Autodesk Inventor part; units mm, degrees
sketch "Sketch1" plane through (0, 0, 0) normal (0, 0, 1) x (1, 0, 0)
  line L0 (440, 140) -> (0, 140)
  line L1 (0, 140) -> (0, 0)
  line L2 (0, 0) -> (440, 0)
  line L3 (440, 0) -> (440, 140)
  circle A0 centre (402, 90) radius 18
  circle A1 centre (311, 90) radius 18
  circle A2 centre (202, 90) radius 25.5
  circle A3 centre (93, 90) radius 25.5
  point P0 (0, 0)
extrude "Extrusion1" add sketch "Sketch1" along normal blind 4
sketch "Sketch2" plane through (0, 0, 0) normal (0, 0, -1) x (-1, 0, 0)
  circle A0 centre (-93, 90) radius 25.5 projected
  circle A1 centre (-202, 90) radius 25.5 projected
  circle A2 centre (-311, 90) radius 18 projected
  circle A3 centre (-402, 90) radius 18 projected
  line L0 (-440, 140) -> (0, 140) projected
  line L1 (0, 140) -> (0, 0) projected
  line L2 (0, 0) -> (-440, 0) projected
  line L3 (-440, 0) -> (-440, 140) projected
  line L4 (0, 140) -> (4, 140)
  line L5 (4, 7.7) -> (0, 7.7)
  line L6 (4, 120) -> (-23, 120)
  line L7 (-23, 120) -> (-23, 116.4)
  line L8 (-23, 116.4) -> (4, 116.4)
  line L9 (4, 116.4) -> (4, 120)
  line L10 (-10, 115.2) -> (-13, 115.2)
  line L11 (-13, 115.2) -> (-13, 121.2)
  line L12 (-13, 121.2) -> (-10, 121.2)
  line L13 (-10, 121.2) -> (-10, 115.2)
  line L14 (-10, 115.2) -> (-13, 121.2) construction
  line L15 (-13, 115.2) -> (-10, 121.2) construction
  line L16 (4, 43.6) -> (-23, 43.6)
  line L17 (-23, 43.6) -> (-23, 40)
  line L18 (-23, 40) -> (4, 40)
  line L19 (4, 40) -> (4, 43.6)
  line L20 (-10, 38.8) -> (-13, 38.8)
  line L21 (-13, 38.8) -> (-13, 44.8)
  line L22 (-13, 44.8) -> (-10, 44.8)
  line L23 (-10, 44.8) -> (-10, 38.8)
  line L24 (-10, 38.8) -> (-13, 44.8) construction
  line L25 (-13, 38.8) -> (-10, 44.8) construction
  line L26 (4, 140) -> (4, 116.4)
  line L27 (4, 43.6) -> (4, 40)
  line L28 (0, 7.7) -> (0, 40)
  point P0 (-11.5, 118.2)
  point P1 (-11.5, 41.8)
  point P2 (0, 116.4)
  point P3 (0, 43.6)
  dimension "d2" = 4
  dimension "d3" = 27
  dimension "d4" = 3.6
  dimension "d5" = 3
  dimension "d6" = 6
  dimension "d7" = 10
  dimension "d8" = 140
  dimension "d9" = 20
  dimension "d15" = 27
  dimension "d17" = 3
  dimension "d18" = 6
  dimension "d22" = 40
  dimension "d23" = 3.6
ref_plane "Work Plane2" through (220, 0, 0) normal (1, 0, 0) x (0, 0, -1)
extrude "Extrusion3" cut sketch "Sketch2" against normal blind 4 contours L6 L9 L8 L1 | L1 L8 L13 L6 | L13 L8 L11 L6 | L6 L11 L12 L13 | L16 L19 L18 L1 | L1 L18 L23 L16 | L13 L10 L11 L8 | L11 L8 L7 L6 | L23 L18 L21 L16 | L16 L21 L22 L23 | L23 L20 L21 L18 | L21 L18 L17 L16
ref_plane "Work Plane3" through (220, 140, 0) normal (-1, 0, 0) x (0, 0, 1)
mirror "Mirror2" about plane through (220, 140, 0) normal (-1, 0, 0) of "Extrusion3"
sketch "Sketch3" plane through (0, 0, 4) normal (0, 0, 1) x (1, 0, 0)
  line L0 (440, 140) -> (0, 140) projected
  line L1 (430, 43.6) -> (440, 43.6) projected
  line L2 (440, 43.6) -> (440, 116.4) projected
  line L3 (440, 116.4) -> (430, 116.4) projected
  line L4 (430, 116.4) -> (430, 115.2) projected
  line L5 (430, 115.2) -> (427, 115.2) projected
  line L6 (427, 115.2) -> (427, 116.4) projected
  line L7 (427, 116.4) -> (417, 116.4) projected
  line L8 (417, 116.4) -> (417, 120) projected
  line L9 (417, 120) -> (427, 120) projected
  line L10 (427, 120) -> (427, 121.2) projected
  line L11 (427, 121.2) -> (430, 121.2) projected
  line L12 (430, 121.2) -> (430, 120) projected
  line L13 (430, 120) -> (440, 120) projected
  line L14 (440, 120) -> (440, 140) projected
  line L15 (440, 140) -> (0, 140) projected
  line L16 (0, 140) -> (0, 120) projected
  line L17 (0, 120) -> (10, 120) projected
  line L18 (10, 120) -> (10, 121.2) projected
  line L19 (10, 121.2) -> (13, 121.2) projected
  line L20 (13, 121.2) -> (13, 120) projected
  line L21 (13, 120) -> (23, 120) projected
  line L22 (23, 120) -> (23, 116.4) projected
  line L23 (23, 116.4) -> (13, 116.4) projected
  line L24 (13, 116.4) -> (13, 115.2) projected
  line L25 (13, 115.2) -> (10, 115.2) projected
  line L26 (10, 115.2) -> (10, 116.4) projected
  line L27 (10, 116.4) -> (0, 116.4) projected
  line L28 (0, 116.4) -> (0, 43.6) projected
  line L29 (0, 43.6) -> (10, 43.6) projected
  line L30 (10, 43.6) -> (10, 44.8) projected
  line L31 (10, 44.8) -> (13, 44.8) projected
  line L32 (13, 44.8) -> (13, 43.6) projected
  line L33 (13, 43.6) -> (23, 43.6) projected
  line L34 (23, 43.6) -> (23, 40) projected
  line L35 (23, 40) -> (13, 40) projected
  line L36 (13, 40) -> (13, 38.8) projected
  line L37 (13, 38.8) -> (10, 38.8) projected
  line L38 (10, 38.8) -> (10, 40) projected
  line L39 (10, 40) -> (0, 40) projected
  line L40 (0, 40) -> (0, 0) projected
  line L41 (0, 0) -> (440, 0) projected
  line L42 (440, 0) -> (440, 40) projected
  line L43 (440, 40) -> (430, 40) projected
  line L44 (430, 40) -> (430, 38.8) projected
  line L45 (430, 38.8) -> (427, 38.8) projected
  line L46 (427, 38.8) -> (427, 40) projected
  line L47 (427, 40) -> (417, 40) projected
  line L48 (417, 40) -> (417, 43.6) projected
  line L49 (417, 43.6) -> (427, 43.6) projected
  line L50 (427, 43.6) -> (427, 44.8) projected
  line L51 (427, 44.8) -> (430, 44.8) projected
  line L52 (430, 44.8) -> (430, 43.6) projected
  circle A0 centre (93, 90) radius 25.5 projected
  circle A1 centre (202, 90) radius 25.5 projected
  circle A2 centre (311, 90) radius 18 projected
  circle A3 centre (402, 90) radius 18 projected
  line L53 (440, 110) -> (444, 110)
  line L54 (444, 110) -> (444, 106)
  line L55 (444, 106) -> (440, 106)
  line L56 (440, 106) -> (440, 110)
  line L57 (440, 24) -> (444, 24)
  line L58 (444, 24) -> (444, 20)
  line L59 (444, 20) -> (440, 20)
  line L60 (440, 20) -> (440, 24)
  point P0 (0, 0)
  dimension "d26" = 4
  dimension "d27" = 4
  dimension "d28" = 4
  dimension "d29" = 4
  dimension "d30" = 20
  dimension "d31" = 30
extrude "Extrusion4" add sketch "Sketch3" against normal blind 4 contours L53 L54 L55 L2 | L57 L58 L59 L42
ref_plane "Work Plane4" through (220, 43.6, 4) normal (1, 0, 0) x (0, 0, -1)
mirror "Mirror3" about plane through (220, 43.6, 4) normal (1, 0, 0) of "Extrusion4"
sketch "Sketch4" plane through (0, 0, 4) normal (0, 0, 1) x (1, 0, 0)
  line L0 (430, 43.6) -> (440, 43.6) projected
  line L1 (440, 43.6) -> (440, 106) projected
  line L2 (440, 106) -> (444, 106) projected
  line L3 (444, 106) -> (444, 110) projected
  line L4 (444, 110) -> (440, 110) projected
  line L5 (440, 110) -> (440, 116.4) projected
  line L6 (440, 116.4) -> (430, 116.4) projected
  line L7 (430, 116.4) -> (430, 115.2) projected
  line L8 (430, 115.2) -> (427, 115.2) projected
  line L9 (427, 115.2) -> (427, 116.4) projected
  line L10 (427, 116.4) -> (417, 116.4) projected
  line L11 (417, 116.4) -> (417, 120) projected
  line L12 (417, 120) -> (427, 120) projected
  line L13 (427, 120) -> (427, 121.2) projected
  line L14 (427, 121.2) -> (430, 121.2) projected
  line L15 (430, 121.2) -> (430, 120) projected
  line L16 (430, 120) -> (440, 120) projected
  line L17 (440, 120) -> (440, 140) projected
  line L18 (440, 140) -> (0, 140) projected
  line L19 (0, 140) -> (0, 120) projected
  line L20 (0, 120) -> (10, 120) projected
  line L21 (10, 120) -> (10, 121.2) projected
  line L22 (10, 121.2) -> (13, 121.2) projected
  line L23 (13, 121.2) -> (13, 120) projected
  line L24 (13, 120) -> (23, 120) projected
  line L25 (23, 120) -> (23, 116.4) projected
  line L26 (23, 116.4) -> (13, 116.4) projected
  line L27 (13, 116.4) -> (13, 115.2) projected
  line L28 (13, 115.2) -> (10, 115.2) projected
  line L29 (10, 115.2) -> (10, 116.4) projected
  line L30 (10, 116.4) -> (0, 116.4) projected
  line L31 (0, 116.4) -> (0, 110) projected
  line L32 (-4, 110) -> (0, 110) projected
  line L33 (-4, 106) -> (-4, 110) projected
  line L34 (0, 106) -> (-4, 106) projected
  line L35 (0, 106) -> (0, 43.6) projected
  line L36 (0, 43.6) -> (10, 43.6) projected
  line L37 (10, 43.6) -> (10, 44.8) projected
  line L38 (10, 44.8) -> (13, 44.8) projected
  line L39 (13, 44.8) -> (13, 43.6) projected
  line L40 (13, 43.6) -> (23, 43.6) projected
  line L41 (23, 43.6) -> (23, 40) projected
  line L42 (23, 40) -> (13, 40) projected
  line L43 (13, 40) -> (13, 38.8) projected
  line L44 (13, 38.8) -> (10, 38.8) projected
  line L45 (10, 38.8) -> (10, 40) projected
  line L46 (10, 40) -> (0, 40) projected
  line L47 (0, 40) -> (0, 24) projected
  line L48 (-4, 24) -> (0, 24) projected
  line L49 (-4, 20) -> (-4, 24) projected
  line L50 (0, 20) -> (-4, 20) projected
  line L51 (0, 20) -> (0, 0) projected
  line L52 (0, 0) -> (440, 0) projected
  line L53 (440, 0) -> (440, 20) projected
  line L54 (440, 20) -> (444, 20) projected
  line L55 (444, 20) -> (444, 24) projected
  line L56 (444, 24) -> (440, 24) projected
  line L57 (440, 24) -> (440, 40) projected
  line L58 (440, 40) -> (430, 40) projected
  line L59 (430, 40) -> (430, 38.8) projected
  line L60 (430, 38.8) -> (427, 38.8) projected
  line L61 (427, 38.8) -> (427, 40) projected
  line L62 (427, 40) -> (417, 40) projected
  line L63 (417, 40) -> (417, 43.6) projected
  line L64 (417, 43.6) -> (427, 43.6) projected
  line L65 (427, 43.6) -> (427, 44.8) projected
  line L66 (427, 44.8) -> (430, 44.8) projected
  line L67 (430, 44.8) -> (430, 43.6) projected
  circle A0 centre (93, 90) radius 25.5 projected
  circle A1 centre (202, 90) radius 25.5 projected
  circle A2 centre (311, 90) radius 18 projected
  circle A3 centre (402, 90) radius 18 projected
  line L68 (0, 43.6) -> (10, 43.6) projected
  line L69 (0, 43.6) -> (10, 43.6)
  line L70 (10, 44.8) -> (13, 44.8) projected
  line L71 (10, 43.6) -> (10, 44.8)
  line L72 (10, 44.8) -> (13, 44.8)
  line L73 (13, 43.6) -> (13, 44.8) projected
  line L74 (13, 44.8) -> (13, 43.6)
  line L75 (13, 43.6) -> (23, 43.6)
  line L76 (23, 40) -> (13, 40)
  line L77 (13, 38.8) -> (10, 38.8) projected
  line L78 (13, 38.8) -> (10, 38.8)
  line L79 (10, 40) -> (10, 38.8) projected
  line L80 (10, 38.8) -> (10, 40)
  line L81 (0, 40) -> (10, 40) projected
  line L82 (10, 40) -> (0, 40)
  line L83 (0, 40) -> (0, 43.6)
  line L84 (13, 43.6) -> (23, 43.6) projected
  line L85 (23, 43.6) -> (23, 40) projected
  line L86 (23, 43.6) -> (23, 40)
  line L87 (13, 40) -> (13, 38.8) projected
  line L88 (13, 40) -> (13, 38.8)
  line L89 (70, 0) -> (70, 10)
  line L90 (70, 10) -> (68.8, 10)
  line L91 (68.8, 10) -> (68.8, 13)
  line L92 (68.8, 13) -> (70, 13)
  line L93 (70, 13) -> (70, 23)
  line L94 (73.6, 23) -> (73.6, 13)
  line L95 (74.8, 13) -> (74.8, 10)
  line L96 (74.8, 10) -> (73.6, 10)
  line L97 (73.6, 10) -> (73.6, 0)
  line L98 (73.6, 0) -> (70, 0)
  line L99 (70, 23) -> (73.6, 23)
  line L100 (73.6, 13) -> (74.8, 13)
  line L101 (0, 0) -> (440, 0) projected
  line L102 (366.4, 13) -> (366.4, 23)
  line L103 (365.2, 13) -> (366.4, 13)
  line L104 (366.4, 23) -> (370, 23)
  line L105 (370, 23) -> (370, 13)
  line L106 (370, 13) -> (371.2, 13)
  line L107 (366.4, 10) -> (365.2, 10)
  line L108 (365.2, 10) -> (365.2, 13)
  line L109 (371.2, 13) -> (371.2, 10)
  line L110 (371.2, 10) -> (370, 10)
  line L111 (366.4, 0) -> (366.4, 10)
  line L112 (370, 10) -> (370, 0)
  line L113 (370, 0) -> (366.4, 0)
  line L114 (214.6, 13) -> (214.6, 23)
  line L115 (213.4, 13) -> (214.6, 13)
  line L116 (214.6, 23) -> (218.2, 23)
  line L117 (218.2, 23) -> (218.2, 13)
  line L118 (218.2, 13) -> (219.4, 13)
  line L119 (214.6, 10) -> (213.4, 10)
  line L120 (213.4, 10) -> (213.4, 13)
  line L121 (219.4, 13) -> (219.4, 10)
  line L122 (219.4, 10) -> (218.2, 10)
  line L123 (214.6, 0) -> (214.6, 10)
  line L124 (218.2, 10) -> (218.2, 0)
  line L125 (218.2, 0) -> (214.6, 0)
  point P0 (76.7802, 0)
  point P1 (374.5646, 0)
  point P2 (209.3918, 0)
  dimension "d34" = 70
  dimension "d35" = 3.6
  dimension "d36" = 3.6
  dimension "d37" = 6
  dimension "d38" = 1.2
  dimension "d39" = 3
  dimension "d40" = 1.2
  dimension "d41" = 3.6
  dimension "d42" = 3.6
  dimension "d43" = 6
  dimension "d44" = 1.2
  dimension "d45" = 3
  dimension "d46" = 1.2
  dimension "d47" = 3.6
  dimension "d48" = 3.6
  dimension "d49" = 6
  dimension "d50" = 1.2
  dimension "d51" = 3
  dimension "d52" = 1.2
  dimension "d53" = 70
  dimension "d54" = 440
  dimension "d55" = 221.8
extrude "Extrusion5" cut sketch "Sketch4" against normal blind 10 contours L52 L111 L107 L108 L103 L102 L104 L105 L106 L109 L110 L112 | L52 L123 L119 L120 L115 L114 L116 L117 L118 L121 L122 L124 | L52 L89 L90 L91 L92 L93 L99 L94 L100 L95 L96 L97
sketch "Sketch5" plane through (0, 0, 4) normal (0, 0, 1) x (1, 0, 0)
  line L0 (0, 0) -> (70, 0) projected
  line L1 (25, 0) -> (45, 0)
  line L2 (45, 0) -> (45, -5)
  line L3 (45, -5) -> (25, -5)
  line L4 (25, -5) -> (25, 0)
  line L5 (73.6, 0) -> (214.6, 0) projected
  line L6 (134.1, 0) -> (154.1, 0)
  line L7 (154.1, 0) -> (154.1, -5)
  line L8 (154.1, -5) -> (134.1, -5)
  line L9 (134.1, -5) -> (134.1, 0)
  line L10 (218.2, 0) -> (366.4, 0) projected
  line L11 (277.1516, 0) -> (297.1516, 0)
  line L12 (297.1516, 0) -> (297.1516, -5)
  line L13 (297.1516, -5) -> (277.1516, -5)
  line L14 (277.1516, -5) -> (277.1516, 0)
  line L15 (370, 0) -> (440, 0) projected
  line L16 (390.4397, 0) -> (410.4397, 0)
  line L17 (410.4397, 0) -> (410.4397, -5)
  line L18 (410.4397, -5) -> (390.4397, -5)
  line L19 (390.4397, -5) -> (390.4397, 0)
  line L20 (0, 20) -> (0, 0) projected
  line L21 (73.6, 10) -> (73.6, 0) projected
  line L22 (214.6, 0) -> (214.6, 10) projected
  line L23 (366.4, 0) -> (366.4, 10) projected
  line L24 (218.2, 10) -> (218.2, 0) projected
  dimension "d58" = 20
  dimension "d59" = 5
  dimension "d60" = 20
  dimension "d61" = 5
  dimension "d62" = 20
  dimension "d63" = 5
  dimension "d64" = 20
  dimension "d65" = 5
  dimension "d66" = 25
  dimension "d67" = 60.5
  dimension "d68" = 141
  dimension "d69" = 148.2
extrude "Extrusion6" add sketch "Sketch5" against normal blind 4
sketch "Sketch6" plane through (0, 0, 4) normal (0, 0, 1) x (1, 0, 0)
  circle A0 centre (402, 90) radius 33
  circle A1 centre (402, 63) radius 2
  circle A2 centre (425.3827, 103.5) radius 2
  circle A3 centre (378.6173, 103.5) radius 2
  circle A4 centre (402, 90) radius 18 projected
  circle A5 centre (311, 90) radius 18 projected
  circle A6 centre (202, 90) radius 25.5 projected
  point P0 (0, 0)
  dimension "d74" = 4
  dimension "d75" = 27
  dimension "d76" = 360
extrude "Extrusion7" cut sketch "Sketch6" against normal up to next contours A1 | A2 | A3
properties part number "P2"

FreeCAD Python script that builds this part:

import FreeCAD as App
import Part
import Sketcher

V = App.Vector
Q = App.Units.Quantity

doc = App.newDocument("Part")
body = doc.addObject("PartDesign::Body", "Body")

# Sketch on XY plane
sketch1 = doc.addObject("Sketcher::SketchObject", "Sketch")
body.addObject(sketch1)
sketch1.AttachmentSupport = (doc.XY_Plane, [""])
sketch1.MapMode = "FlatFace"
sketch1.addGeometry(Part.LineSegment(V(440, 0, 0), V(440, 140, 0)), False)
sketch1.addGeometry(Part.LineSegment(V(440, 140, 0), V(0, 140, 0)), False)
sketch1.addGeometry(Part.LineSegment(V(0, 140, 0), V(0, 0, 0)), False)
sketch1.addGeometry(Part.LineSegment(V(0, 0, 0), V(440, 0, 0)), False)
sketch1.addGeometry(Part.Circle(V(93, 90, 0), V(0, 0, 1), 26), False)
sketch1.addGeometry(Part.Circle(V(202, 90, 0), V(0, 0, 1), 26), False)
sketch1.addGeometry(Part.Circle(V(311, 90, 0), V(0, 0, 1), 18), False)
sketch1.addGeometry(Part.Circle(V(402, 90, 0), V(0, 0, 1), 18), False)
sketch1.addConstraint(Sketcher.Constraint("Coincident", 0, 2, 1, 1))
sketch1.addConstraint(Sketcher.Constraint("Coincident", 1, 2, 2, 1))
sketch1.addConstraint(Sketcher.Constraint("Coincident", 2, 2, 3, 1))
sketch1.addConstraint(Sketcher.Constraint("Coincident", 3, 2, 0, 1))
sketch1.addConstraint(Sketcher.Constraint("Vertical", 0))
sketch1.addConstraint(Sketcher.Constraint("Horizontal", 1))
sketch1.addConstraint(Sketcher.Constraint("Vertical", 2))
sketch1.addConstraint(Sketcher.Constraint("Horizontal", 3))
sketch1.addConstraint(Sketcher.Constraint("Coincident", 2, 2, -1, 1))
sketch1.addConstraint(Sketcher.Constraint("Equal", 4, 5))
sketch1.addConstraint(Sketcher.Constraint("Equal", 6, 7))
sketch1.addConstraint(Sketcher.Constraint("Horizontal", 4, 3, 5, 3))
sketch1.addConstraint(Sketcher.Constraint("Horizontal", 5, 3, 6, 3))
sketch1.addConstraint(Sketcher.Constraint("Horizontal", 6, 3, 7, 3))
sketch1.addConstraint(Sketcher.Constraint("Diameter", 4, Q("51 mm")))
sketch1.addConstraint(Sketcher.Constraint("Diameter", 6, Q("36 mm")))
sketch1.addConstraint(Sketcher.Constraint("DistanceX", 1, 2, 1, 1, Q("440 mm")))
sketch1.addConstraint(Sketcher.Constraint("DistanceY", 0, 1, 0, 2, Q("140 mm")))
sketch1.addConstraint(Sketcher.Constraint("DistanceX", -1, 1, 4, 3, Q("93 mm")))
sketch1.addConstraint(Sketcher.Constraint("DistanceY", -1, 1, 4, 3, Q("90 mm")))
sketch1.addConstraint(Sketcher.Constraint("DistanceX", -1, 1, 5, 3, Q("202 mm")))
sketch1.addConstraint(Sketcher.Constraint("DistanceX", -1, 1, 6, 3, Q("311 mm")))
sketch1.addConstraint(Sketcher.Constraint("DistanceX", -1, 1, 7, 3, Q("402 mm")))
pad1 = doc.addObject("PartDesign::Pad", "Pad")
body.addObject(pad1)
pad1.Profile = sketch1
pad1.Length = 4

# Sketch on XY plane
sketch2 = doc.addObject("Sketcher::SketchObject", "Sketch001")
body.addObject(sketch2)
sketch2.AttachmentSupport = (doc.XY_Plane, [""])
sketch2.MapMode = "FlatFace"
sketch2.addGeometry(Part.LineSegment(V(-4, 120, 0), V(10, 120, 0)), False)
sketch2.addGeometry(Part.LineSegment(V(10, 120, 0), V(10, 121.2, 0)), False)
sketch2.addGeometry(Part.LineSegment(V(10, 121.2, 0), V(13, 121.2, 0)), False)
sketch2.addGeometry(Part.LineSegment(V(13, 121.2, 0), V(13, 120, 0)), False)
sketch2.addGeometry(Part.LineSegment(V(13, 120, 0), V(23, 120, 0)), False)
sketch2.addGeometry(Part.LineSegment(V(23, 120, 0), V(23, 116.4, 0)), False)
sketch2.addGeometry(Part.LineSegment(V(23, 116.4, 0), V(13, 116.4, 0)), False)
sketch2.addGeometry(Part.LineSegment(V(13, 116.4, 0), V(13, 115.2, 0)), False)
sketch2.addGeometry(Part.LineSegment(V(13, 115.2, 0), V(10, 115.2, 0)), False)
sketch2.addGeometry(Part.LineSegment(V(10, 115.2, 0), V(10, 116.4, 0)), False)
sketch2.addGeometry(Part.LineSegment(V(10, 116.4, 0), V(-4, 116.4, 0)), False)
sketch2.addGeometry(Part.LineSegment(V(-4, 116.4, 0), V(-4, 120, 0)), False)
sketch2.addGeometry(Part.LineSegment(V(-4, 43.6, 0), V(10, 43.6, 0)), False)
sketch2.addGeometry(Part.LineSegment(V(10, 43.6, 0), V(10, 44.8, 0)), False)
sketch2.addGeometry(Part.LineSegment(V(10, 44.8, 0), V(13, 44.8, 0)), False)
sketch2.addGeometry(Part.LineSegment(V(13, 44.8, 0), V(13, 43.6, 0)), False)
sketch2.addGeometry(Part.LineSegment(V(13, 43.6, 0), V(23, 43.6, 0)), False)
sketch2.addGeometry(Part.LineSegment(V(23, 43.6, 0), V(23, 40, 0)), False)
sketch2.addGeometry(Part.LineSegment(V(23, 40, 0), V(13, 40, 0)), False)
sketch2.addGeometry(Part.LineSegment(V(13, 40, 0), V(13, 38.8, 0)), False)
sketch2.addGeometry(Part.LineSegment(V(13, 38.8, 0), V(10, 38.8, 0)), False)
sketch2.addGeometry(Part.LineSegment(V(10, 38.8, 0), V(10, 40, 0)), False)
sketch2.addGeometry(Part.LineSegment(V(10, 40, 0), V(-4, 40, 0)), False)
sketch2.addGeometry(Part.LineSegment(V(-4, 40, 0), V(-4, 43.6, 0)), False)
sketch2.addConstraint(Sketcher.Constraint("Coincident", 0, 2, 1, 1))
sketch2.addConstraint(Sketcher.Constraint("Coincident", 1, 2, 2, 1))
sketch2.addConstraint(Sketcher.Constraint("Coincident", 2, 2, 3, 1))
sketch2.addConstraint(Sketcher.Constraint("Coincident", 3, 2, 4, 1))
sketch2.addConstraint(Sketcher.Constraint("Coincident", 4, 2, 5, 1))
sketch2.addConstraint(Sketcher.Constraint("Coincident", 5, 2, 6, 1))
sketch2.addConstraint(Sketcher.Constraint("Coincident", 6, 2, 7, 1))
sketch2.addConstraint(Sketcher.Constraint("Coincident", 7, 2, 8, 1))
sketch2.addConstraint(Sketcher.Constraint("Coincident", 8, 2, 9, 1))
sketch2.addConstraint(Sketcher.Constraint("Coincident", 9, 2, 10, 1))
sketch2.addConstraint(Sketcher.Constraint("Coincident", 10, 2, 11, 1))
sketch2.addConstraint(Sketcher.Constraint("Coincident", 11, 2, 0, 1))
sketch2.addConstraint(Sketcher.Constraint("Coincident", 12, 2, 13, 1))
sketch2.addConstraint(Sketcher.Constraint("Coincident", 13, 2, 14, 1))
sketch2.addConstraint(Sketcher.Constraint("Coincident", 14, 2, 15, 1))
sketch2.addConstraint(Sketcher.Constraint("Coincident", 15, 2, 16, 1))
sketch2.addConstraint(Sketcher.Constraint("Coincident", 16, 2, 17, 1))
sketch2.addConstraint(Sketcher.Constraint("Coincident", 17, 2, 18, 1))
sketch2.addConstraint(Sketcher.Constraint("Coincident", 18, 2, 19, 1))
sketch2.addConstraint(Sketcher.Constraint("Coincident", 19, 2, 20, 1))
sketch2.addConstraint(Sketcher.Constraint("Coincident", 20, 2, 21, 1))
sketch2.addConstraint(Sketcher.Constraint("Coincident", 21, 2, 22, 1))
sketch2.addConstraint(Sketcher.Constraint("Coincident", 22, 2, 23, 1))
sketch2.addConstraint(Sketcher.Constraint("Coincident", 23, 2, 12, 1))
sketch2.addConstraint(Sketcher.Constraint("Horizontal", 0))
sketch2.addConstraint(Sketcher.Constraint("Vertical", 1))
sketch2.addConstraint(Sketcher.Constraint("Horizontal", 2))
sketch2.addConstraint(Sketcher.Constraint("Vertical", 3))
sketch2.addConstraint(Sketcher.Constraint("Horizontal", 4))
sketch2.addConstraint(Sketcher.Constraint("Vertical", 5))
sketch2.addConstraint(Sketcher.Constraint("Horizontal", 6))
sketch2.addConstraint(Sketcher.Constraint("Vertical", 7))
sketch2.addConstraint(Sketcher.Constraint("Horizontal", 8))
sketch2.addConstraint(Sketcher.Constraint("Vertical", 9))
sketch2.addConstraint(Sketcher.Constraint("Horizontal", 10))
sketch2.addConstraint(Sketcher.Constraint("Vertical", 11))
sketch2.addConstraint(Sketcher.Constraint("Horizontal", 12))
sketch2.addConstraint(Sketcher.Constraint("Vertical", 13))
sketch2.addConstraint(Sketcher.Constraint("Horizontal", 14))
sketch2.addConstraint(Sketcher.Constraint("Vertical", 15))
sketch2.addConstraint(Sketcher.Constraint("Horizontal", 16))
sketch2.addConstraint(Sketcher.Constraint("Vertical", 17))
sketch2.addConstraint(Sketcher.Constraint("Horizontal", 18))
sketch2.addConstraint(Sketcher.Constraint("Vertical", 19))
sketch2.addConstraint(Sketcher.Constraint("Horizontal", 20))
sketch2.addConstraint(Sketcher.Constraint("Vertical", 21))
sketch2.addConstraint(Sketcher.Constraint("Horizontal", 22))
sketch2.addConstraint(Sketcher.Constraint("Vertical", 23))
sketch2.addConstraint(Sketcher.Constraint("Horizontal", 0, 2, 3, 2))
sketch2.addConstraint(Sketcher.Constraint("Horizontal", 6, 2, 9, 2))
sketch2.addConstraint(Sketcher.Constraint("Horizontal", 12, 2, 15, 2))
sketch2.addConstraint(Sketcher.Constraint("Horizontal", 18, 2, 21, 2))
sketch2.addConstraint(Sketcher.Constraint("Vertical", 3, 2, 6, 2))
sketch2.addConstraint(Sketcher.Constraint("Vertical", 1, 2, 8, 2))
sketch2.addConstraint(Sketcher.Constraint("Vertical", 9, 2, 12, 2))
sketch2.addConstraint(Sketcher.Constraint("Vertical", 7, 2, 14, 2))
sketch2.addConstraint(Sketcher.Constraint("Vertical", 5, 2, 16, 2))
sketch2.addConstraint(Sketcher.Constraint("Vertical", 15, 2, 18, 2))
sketch2.addConstraint(Sketcher.Constraint("Vertical", 13, 2, 20, 2))
sketch2.addConstraint(Sketcher.Constraint("Vertical", 11, 2, 22, 2))
sketch2.addConstraint(Sketcher.Constraint("Equal", 3, 7))
sketch2.addConstraint(Sketcher.Constraint("Equal", 9, 13))
sketch2.addConstraint(Sketcher.Constraint("Equal", 11, 17))
sketch2.addConstraint(Sketcher.Constraint("Equal", 15, 19))
sketch2.addConstraint(Sketcher.Constraint("DistanceX", 2, 1, 2, 2, Q("3 mm")))
sketch2.addConstraint(Sketcher.Constraint("DistanceX", 4, 1, 4, 2, Q("10 mm")))
sketch2.addConstraint(Sketcher.Constraint("DistanceY", 5, 2, 5, 1, Q("3.6 mm")))
sketch2.addConstraint(Sketcher.Constraint("DistanceX", -1, 1, 0, 2, Q("10 mm")))
sketch2.addConstraint(Sketcher.Constraint("DistanceX", 10, 2, -1, 1, Q("4 mm")))
sketch2.addConstraint(Sketcher.Constraint("DistanceY", -1, 1, 17, 2, Q("40 mm")))
sketch2.addConstraint(Sketcher.Constraint("DistanceY", 7, 2, 2, 2, Q("6 mm")))
sketch2.addConstraint(Sketcher.Constraint("DistanceY", -1, 1, 0, 2, Q("120 mm")))
pocket1 = doc.addObject("PartDesign::Pocket", "Pocket")
body.addObject(pocket1)
pocket1.Profile = sketch2
pocket1.Length = 4
pocket1.Reversed = True
doc.recompute()

datumplane = doc.addObject("PartDesign::Plane", "DatumPlane")
body.addObject(datumplane)
datumplane.AttachmentSupport = (doc.YZ_Plane, [""])
datumplane.MapMode = "FlatFace"
datumplane.AttachmentOffset = App.Placement(V(0, 0, 220), App.Rotation())
mirrored = doc.addObject("PartDesign::Mirrored", "Mirrored")
body.addObject(mirrored)
mirrored.Originals = [pocket1]
mirrored.MirrorPlane = (datumplane, [""])
body.Tip = mirrored

# Sketch on XY plane
sketch3 = doc.addObject("Sketcher::SketchObject", "Sketch002")
body.addObject(sketch3)
sketch3.AttachmentSupport = (doc.XY_Plane, [""])
sketch3.MapMode = "FlatFace"
sketch3.AttachmentOffset = App.Placement(V(0, 0, 4), App.Rotation())
sketch3.addGeometry(Part.LineSegment(V(444, 110, 0), V(440, 110, 0)), False)
sketch3.addGeometry(Part.LineSegment(V(440, 110, 0), V(440, 106, 0)), False)
sketch3.addGeometry(Part.LineSegment(V(440, 106, 0), V(444, 106, 0)), False)
sketch3.addGeometry(Part.LineSegment(V(444, 106, 0), V(444, 110, 0)), False)
sketch3.addGeometry(Part.LineSegment(V(444, 24, 0), V(440, 24, 0)), False)
sketch3.addGeometry(Part.LineSegment(V(440, 24, 0), V(440, 20, 0)), False)
sketch3.addGeometry(Part.LineSegment(V(440, 20, 0), V(444, 20, 0)), False)
sketch3.addGeometry(Part.LineSegment(V(444, 20, 0), V(444, 24, 0)), False)
sketch3.addConstraint(Sketcher.Constraint("Coincident", 0, 2, 1, 1))
sketch3.addConstraint(Sketcher.Constraint("Coincident", 1, 2, 2, 1))
sketch3.addConstraint(Sketcher.Constraint("Coincident", 2, 2, 3, 1))
sketch3.addConstraint(Sketcher.Constraint("Coincident", 3, 2, 0, 1))
sketch3.addConstraint(Sketcher.Constraint("Coincident", 4, 2, 5, 1))
sketch3.addConstraint(Sketcher.Constraint("Coincident", 5, 2, 6, 1))
sketch3.addConstraint(Sketcher.Constraint("Coincident", 6, 2, 7, 1))
sketch3.addConstraint(Sketcher.Constraint("Coincident", 7, 2, 4, 1))
sketch3.addConstraint(Sketcher.Constraint("Horizontal", 0))
sketch3.addConstraint(Sketcher.Constraint("Vertical", 1))
sketch3.addConstraint(Sketcher.Constraint("Horizontal", 2))
sketch3.addConstraint(Sketcher.Constraint("Vertical", 3))
sketch3.addConstraint(Sketcher.Constraint("Horizontal", 4))
sketch3.addConstraint(Sketcher.Constraint("Vertical", 5))
sketch3.addConstraint(Sketcher.Constraint("Horizontal", 6))
sketch3.addConstraint(Sketcher.Constraint("Vertical", 7))
sketch3.addConstraint(Sketcher.Constraint("Vertical", 1, 2, 4, 2))
sketch3.addConstraint(Sketcher.Constraint("Vertical", 3, 2, 6, 2))
sketch3.addConstraint(Sketcher.Constraint("Equal", 6, 1))
sketch3.addConstraint(Sketcher.Constraint("Equal", 3, 5))
sketch3.addConstraint(Sketcher.Constraint("DistanceX", 0, 2, 0, 1, Q("4 mm")))
sketch3.addConstraint(Sketcher.Constraint("DistanceY", -1, 1, 5, 2, Q("20 mm")))
sketch3.addConstraint(Sketcher.Constraint("DistanceX", -1, 1, 0, 2, Q("440 mm")))
sketch3.addConstraint(Sketcher.Constraint("DistanceY", -1, 1, 0, 2, Q("110 mm")))
pad2 = doc.addObject("PartDesign::Pad", "Pad001")
body.addObject(pad2)
pad2.Profile = sketch3
pad2.Length = 4
pad2.Reversed = True
doc.recompute()

datumplane2 = doc.addObject("PartDesign::Plane", "DatumPlane001")
body.addObject(datumplane2)
datumplane2.AttachmentSupport = (doc.YZ_Plane, [""])
datumplane2.MapMode = "FlatFace"
datumplane2.AttachmentOffset = App.Placement(V(0, 0, 220), App.Rotation())
mirrored2 = doc.addObject("PartDesign::Mirrored", "Mirrored001")
body.addObject(mirrored2)
mirrored2.Originals = [pad2]
mirrored2.MirrorPlane = (datumplane2, [""])
body.Tip = mirrored2

# Sketch on XY plane
sketch4 = doc.addObject("Sketcher::SketchObject", "Sketch003")
body.addObject(sketch4)
sketch4.AttachmentSupport = (doc.XY_Plane, [""])
sketch4.MapMode = "FlatFace"
sketch4.AttachmentOffset = App.Placement(V(0, 0, 4), App.Rotation())
sketch4.addGeometry(Part.LineSegment(V(366.4, 0, 0), V(370, 0, 0)), False)
sketch4.addGeometry(Part.LineSegment(V(370, 0, 0), V(370, 10, 0)), False)
sketch4.addGeometry(Part.LineSegment(V(370, 10, 0), V(371.2, 10, 0)), False)
sketch4.addGeometry(Part.LineSegment(V(371.2, 10, 0), V(371.2, 13, 0)), False)
sketch4.addGeometry(Part.LineSegment(V(371.2, 13, 0), V(370, 13, 0)), False)
sketch4.addGeometry(Part.LineSegment(V(370, 13, 0), V(370, 23, 0)), False)
sketch4.addGeometry(Part.LineSegment(V(370, 23, 0), V(366.4, 23, 0)), False)
sketch4.addGeometry(Part.LineSegment(V(366.4, 23, 0), V(366.4, 13, 0)), False)
sketch4.addGeometry(Part.LineSegment(V(366.4, 13, 0), V(365.2, 13, 0)), False)
sketch4.addGeometry(Part.LineSegment(V(365.2, 13, 0), V(365.2, 10, 0)), False)
sketch4.addGeometry(Part.LineSegment(V(365.2, 10, 0), V(366.4, 10, 0)), False)
sketch4.addGeometry(Part.LineSegment(V(366.4, 10, 0), V(366.4, 0, 0)), False)
sketch4.addGeometry(Part.LineSegment(V(214.6, 0, 0), V(218.2, 0, 0)), False)
sketch4.addGeometry(Part.LineSegment(V(218.2, 0, 0), V(218.2, 10, 0)), False)
sketch4.addGeometry(Part.LineSegment(V(218.2, 10, 0), V(219.4, 10, 0)), False)
sketch4.addGeometry(Part.LineSegment(V(219.4, 10, 0), V(219.4, 13, 0)), False)
sketch4.addGeometry(Part.LineSegment(V(219.4, 13, 0), V(218.2, 13, 0)), False)
sketch4.addGeometry(Part.LineSegment(V(218.2, 13, 0), V(218.2, 23, 0)), False)
sketch4.addGeometry(Part.LineSegment(V(218.2, 23, 0), V(214.6, 23, 0)), False)
sketch4.addGeometry(Part.LineSegment(V(214.6, 23, 0), V(214.6, 13, 0)), False)
sketch4.addGeometry(Part.LineSegment(V(214.6, 13, 0), V(213.4, 13, 0)), False)
sketch4.addGeometry(Part.LineSegment(V(213.4, 13, 0), V(213.4, 10, 0)), False)
sketch4.addGeometry(Part.LineSegment(V(213.4, 10, 0), V(214.6, 10, 0)), False)
sketch4.addGeometry(Part.LineSegment(V(214.6, 10, 0), V(214.6, 0, 0)), False)
sketch4.addGeometry(Part.LineSegment(V(70, 0, 0), V(73.6, 0, 0)), False)
sketch4.addGeometry(Part.LineSegment(V(73.6, 0, 0), V(73.6, 10, 0)), False)
sketch4.addGeometry(Part.LineSegment(V(73.6, 10, 0), V(74.8, 10, 0)), False)
sketch4.addGeometry(Part.LineSegment(V(74.8, 10, 0), V(74.8, 13, 0)), False)
sketch4.addGeometry(Part.LineSegment(V(74.8, 13, 0), V(73.6, 13, 0)), False)
sketch4.addGeometry(Part.LineSegment(V(73.6, 13, 0), V(73.6, 23, 0)), False)
sketch4.addGeometry(Part.LineSegment(V(73.6, 23, 0), V(70, 23, 0)), False)
sketch4.addGeometry(Part.LineSegment(V(70, 23, 0), V(70, 13, 0)), False)
sketch4.addGeometry(Part.LineSegment(V(70, 13, 0), V(68.8, 13, 0)), False)
sketch4.addGeometry(Part.LineSegment(V(68.8, 13, 0), V(68.8, 10, 0)), False)
sketch4.addGeometry(Part.LineSegment(V(68.8, 10, 0), V(70, 10, 0)), False)
sketch4.addGeometry(Part.LineSegment(V(70, 10, 0), V(70, 0, 0)), False)
sketch4.addConstraint(Sketcher.Constraint("Coincident", 0, 2, 1, 1))
sketch4.addConstraint(Sketcher.Constraint("Coincident", 1, 2, 2, 1))
sketch4.addConstraint(Sketcher.Constraint("Coincident", 2, 2, 3, 1))
sketch4.addConstraint(Sketcher.Constraint("Coincident", 3, 2, 4, 1))
sketch4.addConstraint(Sketcher.Constraint("Coincident", 4, 2, 5, 1))
sketch4.addConstraint(Sketcher.Constraint("Coincident", 5, 2, 6, 1))
sketch4.addConstraint(Sketcher.Constraint("Coincident", 6, 2, 7, 1))
sketch4.addConstraint(Sketcher.Constraint("Coincident", 7, 2, 8, 1))
sketch4.addConstraint(Sketcher.Constraint("Coincident", 8, 2, 9, 1))
sketch4.addConstraint(Sketcher.Constraint("Coincident", 9, 2, 10, 1))
sketch4.addConstraint(Sketcher.Constraint("Coincident", 10, 2, 11, 1))
sketch4.addConstraint(Sketcher.Constraint("Coincident", 11, 2, 0, 1))
sketch4.addConstraint(Sketcher.Constraint("Coincident", 12, 2, 13, 1))
sketch4.addConstraint(Sketcher.Constraint("Coincident", 13, 2, 14, 1))
sketch4.addConstraint(Sketcher.Constraint("Coincident", 14, 2, 15, 1))
sketch4.addConstraint(Sketcher.Constraint("Coincident", 15, 2, 16, 1))
sketch4.addConstraint(Sketcher.Constraint("Coincident", 16, 2, 17, 1))
sketch4.addConstraint(Sketcher.Constraint("Coincident", 17, 2, 18, 1))
sketch4.addConstraint(Sketcher.Constraint("Coincident", 18, 2, 19, 1))
sketch4.addConstraint(Sketcher.Constraint("Coincident", 19, 2, 20, 1))
sketch4.addConstraint(Sketcher.Constraint("Coincident", 20, 2, 21, 1))
sketch4.addConstraint(Sketcher.Constraint("Coincident", 21, 2, 22, 1))
sketch4.addConstraint(Sketcher.Constraint("Coincident", 22, 2, 23, 1))
sketch4.addConstraint(Sketcher.Constraint("Coincident", 23, 2, 12, 1))
sketch4.addConstraint(Sketcher.Constraint("Coincident", 24, 2, 25, 1))
sketch4.addConstraint(Sketcher.Constraint("Coincident", 25, 2, 26, 1))
sketch4.addConstraint(Sketcher.Constraint("Coincident", 26, 2, 27, 1))
sketch4.addConstraint(Sketcher.Constraint("Coincident", 27, 2, 28, 1))
sketch4.addConstraint(Sketcher.Constraint("Coincident", 28, 2, 29, 1))
sketch4.addConstraint(Sketcher.Constraint("Coincident", 29, 2, 30, 1))
sketch4.addConstraint(Sketcher.Constraint("Coincident", 30, 2, 31, 1))
sketch4.addConstraint(Sketcher.Constraint("Coincident", 31, 2, 32, 1))
sketch4.addConstraint(Sketcher.Constraint("Coincident", 32, 2, 33, 1))
sketch4.addConstraint(Sketcher.Constraint("Coincident", 33, 2, 34, 1))
sketch4.addConstraint(Sketcher.Constraint("Coincident", 34, 2, 35, 1))
sketch4.addConstraint(Sketcher.Constraint("Coincident", 35, 2, 24, 1))
sketch4.addConstraint(Sketcher.Constraint("Horizontal", 0))
sketch4.addConstraint(Sketcher.Constraint("Vertical", 1))
sketch4.addConstraint(Sketcher.Constraint("Horizontal", 2))
sketch4.addConstraint(Sketcher.Constraint("Vertical", 3))
sketch4.addConstraint(Sketcher.Constraint("Horizontal", 4))
sketch4.addConstraint(Sketcher.Constraint("Vertical", 5))
sketch4.addConstraint(Sketcher.Constraint("Horizontal", 6))
sketch4.addConstraint(Sketcher.Constraint("Vertical", 7))
sketch4.addConstraint(Sketcher.Constraint("Horizontal", 8))
sketch4.addConstraint(Sketcher.Constraint("Vertical", 9))
sketch4.addConstraint(Sketcher.Constraint("Horizontal", 10))
sketch4.addConstraint(Sketcher.Constraint("Vertical", 11))
sketch4.addConstraint(Sketcher.Constraint("Horizontal", 12))
sketch4.addConstraint(Sketcher.Constraint("Vertical", 13))
sketch4.addConstraint(Sketcher.Constraint("Horizontal", 14))
sketch4.addConstraint(Sketcher.Constraint("Vertical", 15))
sketch4.addConstraint(Sketcher.Constraint("Horizontal", 16))
sketch4.addConstraint(Sketcher.Constraint("Vertical", 17))
sketch4.addConstraint(Sketcher.Constraint("Horizontal", 18))
sketch4.addConstraint(Sketcher.Constraint("Vertical", 19))
sketch4.addConstraint(Sketcher.Constraint("Horizontal", 20))
sketch4.addConstraint(Sketcher.Constraint("Vertical", 21))
sketch4.addConstraint(Sketcher.Constraint("Horizontal", 22))
sketch4.addConstraint(Sketcher.Constraint("Vertical", 23))
sketch4.addConstraint(Sketcher.Constraint("Horizontal", 24))
sketch4.addConstraint(Sketcher.Constraint("Vertical", 25))
sketch4.addConstraint(Sketcher.Constraint("Horizontal", 26))
sketch4.addConstraint(Sketcher.Constraint("Vertical", 27))
sketch4.addConstraint(Sketcher.Constraint("Horizontal", 28))
sketch4.addConstraint(Sketcher.Constraint("Vertical", 29))
sketch4.addConstraint(Sketcher.Constraint("Horizontal", 30))
sketch4.addConstraint(Sketcher.Constraint("Vertical", 31))
sketch4.addConstraint(Sketcher.Constraint("Horizontal", 32))
sketch4.addConstraint(Sketcher.Constraint("Vertical", 33))
sketch4.addConstraint(Sketcher.Constraint("Horizontal", 34))
sketch4.addConstraint(Sketcher.Constraint("Vertical", 35))
sketch4.addConstraint(Sketcher.Constraint("PointOnObject", 0, 2, -1))
sketch4.addConstraint(Sketcher.Constraint("PointOnObject", 12, 2, -1))
sketch4.addConstraint(Sketcher.Constraint("PointOnObject", 24, 2, -1))
sketch4.addConstraint(Sketcher.Constraint("Horizontal", 4, 2, 7, 2))
sketch4.addConstraint(Sketcher.Constraint("Horizontal", 2, 2, 9, 2))
sketch4.addConstraint(Sketcher.Constraint("Horizontal", 10, 2, 13, 2))
sketch4.addConstraint(Sketcher.Constraint("Horizontal", 8, 2, 15, 2))
sketch4.addConstraint(Sketcher.Constraint("Horizontal", 6, 2, 17, 2))
sketch4.addConstraint(Sketcher.Constraint("Horizontal", 16, 2, 19, 2))
sketch4.addConstraint(Sketcher.Constraint("Horizontal", 14, 2, 21, 2))
sketch4.addConstraint(Sketcher.Constraint("Horizontal", 22, 2, 25, 2))
sketch4.addConstraint(Sketcher.Constraint("Horizontal", 20, 2, 27, 2))
sketch4.addConstraint(Sketcher.Constraint("Horizontal", 18, 2, 29, 2))
sketch4.addConstraint(Sketcher.Constraint("Horizontal", 28, 2, 31, 2))
sketch4.addConstraint(Sketcher.Constraint("Horizontal", 26, 2, 33, 2))
sketch4.addConstraint(Sketcher.Constraint("Vertical", 1, 2, 4, 2))
sketch4.addConstraint(Sketcher.Constraint("Vertical", 7, 2, 10, 2))
sketch4.addConstraint(Sketcher.Constraint("Vertical", 13, 2, 16, 2))
sketch4.addConstraint(Sketcher.Constraint("Vertical", 19, 2, 22, 2))
sketch4.addConstraint(Sketcher.Constraint("Vertical", 25, 2, 28, 2))
sketch4.addConstraint(Sketcher.Constraint("Vertical", 31, 2, 34, 2))
sketch4.addConstraint(Sketcher.Constraint("Equal", 4, 8))
sketch4.addConstraint(Sketcher.Constraint("Equal", 6, 12))
sketch4.addConstraint(Sketcher.Constraint("Equal", 10, 14))
sketch4.addConstraint(Sketcher.Constraint("Equal", 16, 20))
sketch4.addConstraint(Sketcher.Constraint("Equal", 18, 24))
sketch4.addConstraint(Sketcher.Constraint("Equal", 22, 26))
sketch4.addConstraint(Sketcher.Constraint("Equal", 28, 32))
sketch4.addConstraint(Sketcher.Constraint("Equal", 1, 5))
sketch4.addConstraint(Sketcher.Constraint("DistanceY", 3, 1, 3, 2, Q("3 mm")))
sketch4.addConstraint(Sketcher.Constraint("DistanceX", 0, 1, 0, 2, Q("3.6 mm")))
sketch4.addConstraint(Sketcher.Constraint("DistanceX", 2, 1, 2, 2, Q("1.2 mm")))
sketch4.addConstraint(Sketcher.Constraint("DistanceX", -1, 1, 30, 2, Q("70 mm")))
sketch4.addConstraint(Sketcher.Constraint("DistanceY", 1, 1, 1, 2, Q("10 mm")))
sketch4.addConstraint(Sketcher.Constraint("DistanceX", -1, 1, 0, 2, Q("370 mm")))
sketch4.addConstraint(Sketcher.Constraint("DistanceX", 12, 2, 9, 2, Q("147 mm")))
pocket2 = doc.addObject("PartDesign::Pocket", "Pocket001")
body.addObject(pocket2)
pocket2.Profile = sketch4
pocket2.Length = 10

# Sketch on XY plane
sketch5 = doc.addObject("Sketcher::SketchObject", "Sketch004")
body.addObject(sketch5)
sketch5.AttachmentSupport = (doc.XY_Plane, [""])
sketch5.MapMode = "FlatFace"
sketch5.AttachmentOffset = App.Placement(V(0, 0, 4), App.Rotation())
sketch5.addGeometry(Part.LineSegment(V(45, 0, 0), V(25, 0, 0)), False)
sketch5.addGeometry(Part.LineSegment(V(25, 0, 0), V(25, -5, 0)), False)
sketch5.addGeometry(Part.LineSegment(V(25, -5, 0), V(45, -5, 0)), False)
sketch5.addGeometry(Part.LineSegment(V(45, -5, 0), V(45, 0, 0)), False)
sketch5.addGeometry(Part.LineSegment(V(154, 0, 0), V(134, 0, 0)), False)
sketch5.addGeometry(Part.LineSegment(V(134, 0, 0), V(134, -5, 0)), False)
sketch5.addGeometry(Part.LineSegment(V(134, -5, 0), V(154, -5, 0)), False)
sketch5.addGeometry(Part.LineSegment(V(154, -5, 0), V(154, 0, 0)), False)
sketch5.addGeometry(Part.LineSegment(V(297, 0, 0), V(277, 0, 0)), False)
sketch5.addGeometry(Part.LineSegment(V(277, 0, 0), V(277, -5, 0)), False)
sketch5.addGeometry(Part.LineSegment(V(277, -5, 0), V(297, -5, 0)), False)
sketch5.addGeometry(Part.LineSegment(V(297, -5, 0), V(297, 0, 0)), False)
sketch5.addGeometry(Part.LineSegment(V(410, 0, 0), V(390, 0, 0)), False)
sketch5.addGeometry(Part.LineSegment(V(390, 0, 0), V(390, -5, 0)), False)
sketch5.addGeometry(Part.LineSegment(V(390, -5, 0), V(410, -5, 0)), False)
sketch5.addGeometry(Part.LineSegment(V(410, -5, 0), V(410, 0, 0)), False)
sketch5.addConstraint(Sketcher.Constraint("Coincident", 0, 2, 1, 1))
sketch5.addConstraint(Sketcher.Constraint("Coincident", 1, 2, 2, 1))
sketch5.addConstraint(Sketcher.Constraint("Coincident", 2, 2, 3, 1))
sketch5.addConstraint(Sketcher.Constraint("Coincident", 3, 2, 0, 1))
sketch5.addConstraint(Sketcher.Constraint("Coincident", 4, 2, 5, 1))
sketch5.addConstraint(Sketcher.Constraint("Coincident", 5, 2, 6, 1))
sketch5.addConstraint(Sketcher.Constraint("Coincident", 6, 2, 7, 1))
sketch5.addConstraint(Sketcher.Constraint("Coincident", 7, 2, 4, 1))
sketch5.addConstraint(Sketcher.Constraint("Coincident", 8, 2, 9, 1))
sketch5.addConstraint(Sketcher.Constraint("Coincident", 9, 2, 10, 1))
sketch5.addConstraint(Sketcher.Constraint("Coincident", 10, 2, 11, 1))
sketch5.addConstraint(Sketcher.Constraint("Coincident", 11, 2, 8, 1))
sketch5.addConstraint(Sketcher.Constraint("Coincident", 12, 2, 13, 1))
sketch5.addConstraint(Sketcher.Constraint("Coincident", 13, 2, 14, 1))
sketch5.addConstraint(Sketcher.Constraint("Coincident", 14, 2, 15, 1))
sketch5.addConstraint(Sketcher.Constraint("Coincident", 15, 2, 12, 1))
sketch5.addConstraint(Sketcher.Constraint("Horizontal", 0))
sketch5.addConstraint(Sketcher.Constraint("Vertical", 1))
sketch5.addConstraint(Sketcher.Constraint("Horizontal", 2))
sketch5.addConstraint(Sketcher.Constraint("Vertical", 3))
sketch5.addConstraint(Sketcher.Constraint("Horizontal", 4))
sketch5.addConstraint(Sketcher.Constraint("Vertical", 5))
sketch5.addConstraint(Sketcher.Constraint("Horizontal", 6))
sketch5.addConstraint(Sketcher.Constraint("Vertical", 7))
sketch5.addConstraint(Sketcher.Constraint("Horizontal", 8))
sketch5.addConstraint(Sketcher.Constraint("Vertical", 9))
sketch5.addConstraint(Sketcher.Constraint("Horizontal", 10))
sketch5.addConstraint(Sketcher.Constraint("Vertical", 11))
sketch5.addConstraint(Sketcher.Constraint("Horizontal", 12))
sketch5.addConstraint(Sketcher.Constraint("Vertical", 13))
sketch5.addConstraint(Sketcher.Constraint("Horizontal", 14))
sketch5.addConstraint(Sketcher.Constraint("Vertical", 15))
sketch5.addConstraint(Sketcher.Constraint("PointOnObject", 0, 2, -1))
sketch5.addConstraint(Sketcher.Constraint("PointOnObject", 4, 2, -1))
sketch5.addConstraint(Sketcher.Constraint("PointOnObject", 8, 2, -1))
sketch5.addConstraint(Sketcher.Constraint("PointOnObject", 12, 2, -1))
sketch5.addConstraint(Sketcher.Constraint("Horizontal", 2, 2, 5, 2))
sketch5.addConstraint(Sketcher.Constraint("Horizontal", 6, 2, 9, 2))
sketch5.addConstraint(Sketcher.Constraint("Horizontal", 10, 2, 13, 2))
sketch5.addConstraint(Sketcher.Constraint("Equal", 2, 4))
sketch5.addConstraint(Sketcher.Constraint("Equal", 6, 8))
sketch5.addConstraint(Sketcher.Constraint("Equal", 10, 12))
sketch5.addConstraint(Sketcher.Constraint("DistanceX", 0, 2, 0, 1, Q("20 mm")))
sketch5.addConstraint(Sketcher.Constraint("DistanceY", 1, 2, 1, 1, Q("5 mm")))
sketch5.addConstraint(Sketcher.Constraint("DistanceX", -1, 1, 0, 2, Q("25 mm")))
sketch5.addConstraint(Sketcher.Constraint("DistanceX", -1, 1, 4, 2, Q("134.1 mm")))
sketch5.addConstraint(Sketcher.Constraint("DistanceX", 11, 2, 12, 2, Q("93.288 mm")))
sketch5.addConstraint(Sketcher.Constraint("DistanceX", -1, 1, 8, 2, Q("277.1516 mm")))
pad3 = doc.addObject("PartDesign::Pad", "Pad002")
body.addObject(pad3)
pad3.Profile = sketch5
pad3.Length = 4
pad3.Reversed = True

# Sketch on XY plane
sketch6 = doc.addObject("Sketcher::SketchObject", "Sketch005")
body.addObject(sketch6)
sketch6.AttachmentSupport = (doc.XY_Plane, [""])
sketch6.MapMode = "FlatFace"
sketch6.AttachmentOffset = App.Placement(V(0, 0, 4), App.Rotation())
sketch6.addGeometry(Part.Circle(V(402, 63, 0), V(0, 0, 1), 2), False)
sketch6.addGeometry(Part.Circle(V(425.4, 103.5, 0), V(0, 0, 1), 2), False)
sketch6.addGeometry(Part.Circle(V(378.6, 103.5, 0), V(0, 0, 1), 2), False)
sketch6.addConstraint(Sketcher.Constraint("Equal", 0, 1))
sketch6.addConstraint(Sketcher.Constraint("Equal", 1, 2))
sketch6.addConstraint(Sketcher.Constraint("Horizontal", 1, 3, 2, 3))
sketch6.addConstraint(Sketcher.Constraint("Diameter", 0, Q("4 mm")))
sketch6.addConstraint(Sketcher.Constraint("DistanceX", -1, 1, 0, 3, Q("402 mm")))
sketch6.addConstraint(Sketcher.Constraint("DistanceY", -1, 1, 0, 3, Q("63 mm")))
sketch6.addConstraint(Sketcher.Constraint("DistanceY", -1, 1, 1, 3, Q("103.5 mm")))
sketch6.addConstraint(Sketcher.Constraint("DistanceX", -1, 1, 1, 3, Q("425.3827 mm")))
sketch6.addConstraint(Sketcher.Constraint("DistanceX", -1, 1, 2, 3, Q("378.6173 mm")))
pocket3 = doc.addObject("PartDesign::Pocket", "Pocket002")
body.addObject(pocket3)
pocket3.Profile = sketch6
pocket3.Length = 4

doc.recompute()
